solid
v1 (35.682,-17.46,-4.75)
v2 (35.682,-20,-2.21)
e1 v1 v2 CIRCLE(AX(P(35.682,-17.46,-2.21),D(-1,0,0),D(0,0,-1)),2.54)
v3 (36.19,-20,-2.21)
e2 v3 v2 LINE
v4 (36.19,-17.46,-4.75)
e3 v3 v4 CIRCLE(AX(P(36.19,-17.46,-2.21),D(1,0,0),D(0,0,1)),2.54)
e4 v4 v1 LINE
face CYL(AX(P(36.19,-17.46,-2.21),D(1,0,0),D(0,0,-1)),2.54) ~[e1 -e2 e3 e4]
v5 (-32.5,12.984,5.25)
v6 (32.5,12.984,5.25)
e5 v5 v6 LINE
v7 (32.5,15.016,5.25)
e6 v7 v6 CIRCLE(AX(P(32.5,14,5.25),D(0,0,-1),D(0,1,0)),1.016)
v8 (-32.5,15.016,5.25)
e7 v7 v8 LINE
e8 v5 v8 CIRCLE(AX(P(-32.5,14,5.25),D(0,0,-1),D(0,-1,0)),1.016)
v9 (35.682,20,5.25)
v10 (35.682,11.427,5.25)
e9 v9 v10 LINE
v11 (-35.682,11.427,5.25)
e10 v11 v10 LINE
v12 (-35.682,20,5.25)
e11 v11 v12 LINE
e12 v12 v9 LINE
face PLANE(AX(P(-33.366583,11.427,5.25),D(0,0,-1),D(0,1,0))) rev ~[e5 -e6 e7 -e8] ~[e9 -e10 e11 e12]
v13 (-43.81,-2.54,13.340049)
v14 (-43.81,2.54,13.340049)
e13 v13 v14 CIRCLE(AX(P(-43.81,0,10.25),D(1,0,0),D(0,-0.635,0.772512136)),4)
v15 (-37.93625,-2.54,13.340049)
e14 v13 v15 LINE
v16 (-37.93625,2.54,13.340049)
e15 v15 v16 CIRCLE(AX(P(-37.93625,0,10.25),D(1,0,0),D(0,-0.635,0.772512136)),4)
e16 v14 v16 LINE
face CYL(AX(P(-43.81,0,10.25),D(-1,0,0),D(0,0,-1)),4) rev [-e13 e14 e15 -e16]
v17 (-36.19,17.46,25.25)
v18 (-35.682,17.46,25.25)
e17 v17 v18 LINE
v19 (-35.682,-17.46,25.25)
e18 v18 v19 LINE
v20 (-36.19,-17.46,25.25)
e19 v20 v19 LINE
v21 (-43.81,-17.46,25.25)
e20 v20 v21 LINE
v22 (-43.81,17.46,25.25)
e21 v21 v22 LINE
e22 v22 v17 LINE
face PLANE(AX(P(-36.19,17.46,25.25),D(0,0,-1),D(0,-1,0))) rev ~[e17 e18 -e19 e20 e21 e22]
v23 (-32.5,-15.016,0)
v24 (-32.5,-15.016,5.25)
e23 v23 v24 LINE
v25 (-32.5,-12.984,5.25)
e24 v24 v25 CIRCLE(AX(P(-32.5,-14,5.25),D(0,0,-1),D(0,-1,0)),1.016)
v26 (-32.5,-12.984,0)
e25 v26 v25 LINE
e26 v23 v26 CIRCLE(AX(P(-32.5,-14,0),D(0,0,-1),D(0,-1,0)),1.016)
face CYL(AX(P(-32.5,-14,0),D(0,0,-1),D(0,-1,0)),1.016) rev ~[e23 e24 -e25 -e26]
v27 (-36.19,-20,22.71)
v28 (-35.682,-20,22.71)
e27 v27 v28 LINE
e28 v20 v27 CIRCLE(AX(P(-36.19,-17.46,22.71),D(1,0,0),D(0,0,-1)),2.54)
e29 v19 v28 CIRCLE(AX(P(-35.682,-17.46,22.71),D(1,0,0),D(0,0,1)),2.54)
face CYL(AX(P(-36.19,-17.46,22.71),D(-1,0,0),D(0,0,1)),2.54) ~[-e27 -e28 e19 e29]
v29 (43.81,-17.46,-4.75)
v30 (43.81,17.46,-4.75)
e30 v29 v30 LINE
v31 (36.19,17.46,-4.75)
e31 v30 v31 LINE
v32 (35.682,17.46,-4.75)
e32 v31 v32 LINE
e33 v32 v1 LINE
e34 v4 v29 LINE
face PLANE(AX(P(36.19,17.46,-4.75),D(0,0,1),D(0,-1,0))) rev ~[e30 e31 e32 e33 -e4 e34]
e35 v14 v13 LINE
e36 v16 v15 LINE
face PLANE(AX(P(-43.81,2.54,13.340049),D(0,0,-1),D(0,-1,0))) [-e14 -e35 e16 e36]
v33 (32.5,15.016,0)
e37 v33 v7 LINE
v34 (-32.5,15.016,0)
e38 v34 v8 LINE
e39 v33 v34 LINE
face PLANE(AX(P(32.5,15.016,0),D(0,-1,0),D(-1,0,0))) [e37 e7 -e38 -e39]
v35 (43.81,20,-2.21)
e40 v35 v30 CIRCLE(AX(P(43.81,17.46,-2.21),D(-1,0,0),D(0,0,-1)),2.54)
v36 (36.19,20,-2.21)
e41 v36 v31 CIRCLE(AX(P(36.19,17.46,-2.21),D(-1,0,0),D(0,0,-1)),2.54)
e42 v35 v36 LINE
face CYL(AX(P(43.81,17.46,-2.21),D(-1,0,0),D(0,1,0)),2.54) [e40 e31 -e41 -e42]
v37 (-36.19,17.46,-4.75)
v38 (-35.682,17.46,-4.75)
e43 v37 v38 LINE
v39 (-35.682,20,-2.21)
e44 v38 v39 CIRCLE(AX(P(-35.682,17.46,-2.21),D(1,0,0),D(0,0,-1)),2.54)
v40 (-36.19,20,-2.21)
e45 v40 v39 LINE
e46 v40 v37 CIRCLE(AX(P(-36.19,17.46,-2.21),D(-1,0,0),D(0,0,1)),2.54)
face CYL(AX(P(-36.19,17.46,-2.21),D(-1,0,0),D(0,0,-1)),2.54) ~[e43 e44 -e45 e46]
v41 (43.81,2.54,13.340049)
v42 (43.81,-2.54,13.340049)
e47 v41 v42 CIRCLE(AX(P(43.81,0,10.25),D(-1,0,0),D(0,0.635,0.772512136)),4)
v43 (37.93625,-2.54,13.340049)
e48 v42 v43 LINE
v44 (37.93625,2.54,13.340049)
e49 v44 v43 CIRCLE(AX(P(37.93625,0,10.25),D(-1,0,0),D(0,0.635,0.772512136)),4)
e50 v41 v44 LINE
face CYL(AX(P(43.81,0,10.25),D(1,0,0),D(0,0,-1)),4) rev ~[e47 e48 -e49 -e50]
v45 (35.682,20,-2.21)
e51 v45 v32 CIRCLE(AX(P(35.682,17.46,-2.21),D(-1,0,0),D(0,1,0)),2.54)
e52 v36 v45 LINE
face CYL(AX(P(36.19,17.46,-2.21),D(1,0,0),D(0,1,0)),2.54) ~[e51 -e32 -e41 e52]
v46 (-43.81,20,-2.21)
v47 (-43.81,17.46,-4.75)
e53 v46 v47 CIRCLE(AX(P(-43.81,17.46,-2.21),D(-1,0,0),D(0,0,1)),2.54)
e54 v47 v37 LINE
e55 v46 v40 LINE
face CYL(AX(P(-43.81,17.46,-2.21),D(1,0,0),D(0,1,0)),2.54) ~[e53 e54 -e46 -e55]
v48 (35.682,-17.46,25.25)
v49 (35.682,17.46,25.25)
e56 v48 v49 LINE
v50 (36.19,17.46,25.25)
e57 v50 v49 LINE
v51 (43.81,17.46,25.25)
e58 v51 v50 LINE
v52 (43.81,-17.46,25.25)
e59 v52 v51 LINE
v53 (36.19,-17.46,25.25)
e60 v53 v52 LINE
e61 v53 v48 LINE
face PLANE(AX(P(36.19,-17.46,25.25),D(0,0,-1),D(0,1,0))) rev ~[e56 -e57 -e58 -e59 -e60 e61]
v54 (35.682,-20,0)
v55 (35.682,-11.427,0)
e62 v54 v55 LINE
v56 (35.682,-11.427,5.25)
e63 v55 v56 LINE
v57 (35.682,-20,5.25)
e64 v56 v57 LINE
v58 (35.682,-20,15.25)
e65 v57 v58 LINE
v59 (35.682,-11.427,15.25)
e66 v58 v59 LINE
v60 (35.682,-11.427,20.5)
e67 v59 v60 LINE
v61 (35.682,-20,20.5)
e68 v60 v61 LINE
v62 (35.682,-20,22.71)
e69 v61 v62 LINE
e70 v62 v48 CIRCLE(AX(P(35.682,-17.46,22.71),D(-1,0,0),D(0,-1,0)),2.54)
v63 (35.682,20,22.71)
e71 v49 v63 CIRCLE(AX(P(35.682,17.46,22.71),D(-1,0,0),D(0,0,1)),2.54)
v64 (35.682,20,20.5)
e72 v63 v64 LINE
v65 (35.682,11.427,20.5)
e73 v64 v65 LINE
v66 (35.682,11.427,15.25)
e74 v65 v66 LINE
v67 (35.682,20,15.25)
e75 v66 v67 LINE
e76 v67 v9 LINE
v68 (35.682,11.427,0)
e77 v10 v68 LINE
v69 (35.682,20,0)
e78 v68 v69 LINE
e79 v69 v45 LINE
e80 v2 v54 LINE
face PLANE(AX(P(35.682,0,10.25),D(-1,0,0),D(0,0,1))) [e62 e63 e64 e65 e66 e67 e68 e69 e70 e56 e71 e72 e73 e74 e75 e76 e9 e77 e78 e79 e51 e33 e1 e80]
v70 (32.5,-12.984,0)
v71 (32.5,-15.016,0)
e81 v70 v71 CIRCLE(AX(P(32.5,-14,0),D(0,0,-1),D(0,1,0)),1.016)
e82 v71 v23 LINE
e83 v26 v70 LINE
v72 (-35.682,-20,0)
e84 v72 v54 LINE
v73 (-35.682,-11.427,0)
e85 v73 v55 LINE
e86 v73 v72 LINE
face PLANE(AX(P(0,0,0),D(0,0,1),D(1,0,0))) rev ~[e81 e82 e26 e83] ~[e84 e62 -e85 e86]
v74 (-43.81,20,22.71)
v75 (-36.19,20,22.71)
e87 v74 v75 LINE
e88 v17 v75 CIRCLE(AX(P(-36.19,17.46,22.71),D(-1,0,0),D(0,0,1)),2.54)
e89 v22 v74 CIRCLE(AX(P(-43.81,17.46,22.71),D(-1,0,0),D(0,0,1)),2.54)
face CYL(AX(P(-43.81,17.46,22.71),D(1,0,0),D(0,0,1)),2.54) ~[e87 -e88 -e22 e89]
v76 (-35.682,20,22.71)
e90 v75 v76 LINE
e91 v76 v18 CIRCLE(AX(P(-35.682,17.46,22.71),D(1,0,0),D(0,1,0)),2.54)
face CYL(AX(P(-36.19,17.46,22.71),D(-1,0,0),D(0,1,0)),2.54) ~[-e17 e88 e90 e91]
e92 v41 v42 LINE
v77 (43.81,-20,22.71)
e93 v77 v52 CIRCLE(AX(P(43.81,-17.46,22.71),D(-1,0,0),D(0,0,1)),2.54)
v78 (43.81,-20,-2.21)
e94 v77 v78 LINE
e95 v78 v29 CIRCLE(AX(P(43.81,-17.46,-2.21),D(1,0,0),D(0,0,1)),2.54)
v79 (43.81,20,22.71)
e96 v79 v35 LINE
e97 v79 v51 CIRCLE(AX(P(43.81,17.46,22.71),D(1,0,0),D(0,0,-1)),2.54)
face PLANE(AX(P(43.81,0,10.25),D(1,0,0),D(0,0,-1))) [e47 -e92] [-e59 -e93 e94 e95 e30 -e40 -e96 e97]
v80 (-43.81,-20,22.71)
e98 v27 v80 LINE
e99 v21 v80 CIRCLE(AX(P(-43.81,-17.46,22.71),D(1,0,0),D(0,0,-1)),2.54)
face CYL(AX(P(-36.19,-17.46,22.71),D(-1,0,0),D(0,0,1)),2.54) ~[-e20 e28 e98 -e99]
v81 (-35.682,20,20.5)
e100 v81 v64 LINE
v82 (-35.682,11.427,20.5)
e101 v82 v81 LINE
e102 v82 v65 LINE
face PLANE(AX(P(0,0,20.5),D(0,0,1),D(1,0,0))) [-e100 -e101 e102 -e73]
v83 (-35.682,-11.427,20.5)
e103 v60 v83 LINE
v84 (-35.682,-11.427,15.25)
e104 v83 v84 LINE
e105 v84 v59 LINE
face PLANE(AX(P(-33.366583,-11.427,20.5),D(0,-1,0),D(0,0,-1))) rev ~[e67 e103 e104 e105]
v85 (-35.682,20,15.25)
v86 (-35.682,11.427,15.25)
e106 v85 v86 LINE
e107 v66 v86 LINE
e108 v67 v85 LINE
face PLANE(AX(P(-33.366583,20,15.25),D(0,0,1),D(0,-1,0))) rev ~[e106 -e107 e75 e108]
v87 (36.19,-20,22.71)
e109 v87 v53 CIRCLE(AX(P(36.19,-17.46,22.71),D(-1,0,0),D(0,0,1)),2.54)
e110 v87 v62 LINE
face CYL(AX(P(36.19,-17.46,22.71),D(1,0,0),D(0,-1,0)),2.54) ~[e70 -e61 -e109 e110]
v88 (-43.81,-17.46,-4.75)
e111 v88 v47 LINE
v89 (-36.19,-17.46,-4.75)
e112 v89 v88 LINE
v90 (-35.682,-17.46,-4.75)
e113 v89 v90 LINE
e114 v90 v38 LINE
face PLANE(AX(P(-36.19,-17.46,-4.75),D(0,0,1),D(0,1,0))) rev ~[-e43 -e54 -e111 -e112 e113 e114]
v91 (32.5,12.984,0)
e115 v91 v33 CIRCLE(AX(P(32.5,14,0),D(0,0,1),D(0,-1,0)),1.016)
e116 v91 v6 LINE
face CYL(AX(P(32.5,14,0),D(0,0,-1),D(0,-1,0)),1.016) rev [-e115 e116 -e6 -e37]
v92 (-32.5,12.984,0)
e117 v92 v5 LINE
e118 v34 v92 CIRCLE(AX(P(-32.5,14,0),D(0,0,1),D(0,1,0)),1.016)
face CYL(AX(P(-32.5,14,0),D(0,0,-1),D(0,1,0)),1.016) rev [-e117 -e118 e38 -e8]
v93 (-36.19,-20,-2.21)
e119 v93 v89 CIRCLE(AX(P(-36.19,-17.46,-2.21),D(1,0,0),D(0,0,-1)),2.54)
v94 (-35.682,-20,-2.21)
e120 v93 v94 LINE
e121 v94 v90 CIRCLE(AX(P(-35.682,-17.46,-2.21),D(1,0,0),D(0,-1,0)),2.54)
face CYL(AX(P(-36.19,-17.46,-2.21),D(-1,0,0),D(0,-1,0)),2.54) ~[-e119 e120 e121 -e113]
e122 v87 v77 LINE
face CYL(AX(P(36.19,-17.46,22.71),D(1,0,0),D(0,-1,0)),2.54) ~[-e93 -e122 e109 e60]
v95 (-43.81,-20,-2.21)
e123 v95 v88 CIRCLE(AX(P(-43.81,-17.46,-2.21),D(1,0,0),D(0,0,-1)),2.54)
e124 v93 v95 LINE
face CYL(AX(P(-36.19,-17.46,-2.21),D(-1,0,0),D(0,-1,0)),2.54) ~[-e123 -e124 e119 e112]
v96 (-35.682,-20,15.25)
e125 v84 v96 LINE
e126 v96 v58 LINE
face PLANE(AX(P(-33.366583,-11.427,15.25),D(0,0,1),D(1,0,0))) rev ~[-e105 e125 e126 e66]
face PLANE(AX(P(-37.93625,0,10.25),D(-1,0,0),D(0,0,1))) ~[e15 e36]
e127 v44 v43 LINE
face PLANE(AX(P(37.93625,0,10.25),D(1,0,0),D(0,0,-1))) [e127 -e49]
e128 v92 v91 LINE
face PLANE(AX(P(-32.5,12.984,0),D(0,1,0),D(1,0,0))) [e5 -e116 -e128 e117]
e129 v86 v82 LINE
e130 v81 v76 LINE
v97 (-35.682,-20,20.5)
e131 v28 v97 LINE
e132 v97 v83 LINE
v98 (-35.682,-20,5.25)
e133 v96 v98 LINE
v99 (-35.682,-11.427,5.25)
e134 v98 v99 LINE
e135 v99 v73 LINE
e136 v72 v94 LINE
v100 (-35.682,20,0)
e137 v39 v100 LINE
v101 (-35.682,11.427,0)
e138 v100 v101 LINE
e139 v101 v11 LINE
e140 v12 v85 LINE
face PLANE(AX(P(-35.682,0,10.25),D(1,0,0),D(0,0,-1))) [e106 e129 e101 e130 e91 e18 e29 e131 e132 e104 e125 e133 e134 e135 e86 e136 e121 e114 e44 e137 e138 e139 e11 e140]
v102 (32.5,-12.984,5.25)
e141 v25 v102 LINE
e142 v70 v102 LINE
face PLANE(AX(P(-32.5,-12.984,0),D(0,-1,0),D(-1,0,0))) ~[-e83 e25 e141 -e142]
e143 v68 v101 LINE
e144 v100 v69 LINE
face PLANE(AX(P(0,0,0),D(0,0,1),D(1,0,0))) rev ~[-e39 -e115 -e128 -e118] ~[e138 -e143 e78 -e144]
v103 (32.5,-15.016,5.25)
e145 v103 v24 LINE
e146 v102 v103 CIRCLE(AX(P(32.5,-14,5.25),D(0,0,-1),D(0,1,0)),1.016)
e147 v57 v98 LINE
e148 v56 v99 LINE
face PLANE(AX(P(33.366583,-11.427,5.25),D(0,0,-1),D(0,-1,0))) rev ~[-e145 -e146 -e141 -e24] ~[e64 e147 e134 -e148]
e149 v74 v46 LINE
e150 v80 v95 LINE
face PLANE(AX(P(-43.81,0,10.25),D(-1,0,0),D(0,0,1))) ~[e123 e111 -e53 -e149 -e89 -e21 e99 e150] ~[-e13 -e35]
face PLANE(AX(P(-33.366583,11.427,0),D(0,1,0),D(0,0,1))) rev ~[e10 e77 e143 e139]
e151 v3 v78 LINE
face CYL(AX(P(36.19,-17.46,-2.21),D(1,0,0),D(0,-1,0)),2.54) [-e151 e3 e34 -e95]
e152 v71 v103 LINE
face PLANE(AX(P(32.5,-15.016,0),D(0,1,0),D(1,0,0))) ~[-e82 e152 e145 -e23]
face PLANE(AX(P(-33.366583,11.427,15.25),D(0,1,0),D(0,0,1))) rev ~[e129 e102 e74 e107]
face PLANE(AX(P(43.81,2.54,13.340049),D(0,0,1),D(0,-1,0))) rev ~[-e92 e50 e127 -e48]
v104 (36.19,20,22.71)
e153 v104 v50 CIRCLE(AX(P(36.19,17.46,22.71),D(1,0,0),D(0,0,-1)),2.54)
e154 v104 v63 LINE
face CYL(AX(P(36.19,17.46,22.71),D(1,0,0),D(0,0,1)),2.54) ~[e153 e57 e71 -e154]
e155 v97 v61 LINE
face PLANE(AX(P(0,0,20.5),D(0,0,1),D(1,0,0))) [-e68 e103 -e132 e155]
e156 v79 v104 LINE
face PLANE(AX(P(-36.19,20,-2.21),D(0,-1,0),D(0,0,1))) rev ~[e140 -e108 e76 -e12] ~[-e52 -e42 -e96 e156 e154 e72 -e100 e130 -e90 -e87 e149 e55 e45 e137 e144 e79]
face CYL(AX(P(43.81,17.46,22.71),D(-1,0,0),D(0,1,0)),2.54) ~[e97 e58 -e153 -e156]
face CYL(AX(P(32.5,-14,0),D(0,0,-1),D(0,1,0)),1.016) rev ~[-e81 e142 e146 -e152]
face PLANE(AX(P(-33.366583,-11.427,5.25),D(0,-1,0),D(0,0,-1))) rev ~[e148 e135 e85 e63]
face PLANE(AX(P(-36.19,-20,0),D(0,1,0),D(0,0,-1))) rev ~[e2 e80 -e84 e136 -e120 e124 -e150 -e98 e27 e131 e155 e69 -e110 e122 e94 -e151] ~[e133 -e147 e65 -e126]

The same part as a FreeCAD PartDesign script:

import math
import FreeCAD as App
import Part
import Sketcher

V = App.Vector
Q = App.Units.Quantity


def edges_at(feature, points):
    """Names of the edges that pass closest to the given points."""
    edges = feature.Shape.Edges
    near = lambda p: min(range(len(edges)), key=lambda i: edges[i].distToShape(Part.Vertex(*p))[0])
    return sorted({f"Edge{near(p) + 1}" for p in points})


def add_polygon(sketch, points):
    """Adds a closed chain of lines whose ends are joined by coincident constraints."""
    first, n = sketch.GeometryCount, len(points)
    for a, b in zip(points, points[1:] + points[:1]):
        sketch.addGeometry(Part.LineSegment(App.Vector(*a, 0), App.Vector(*b, 0)), False)
    for i in range(n):
        sketch.addConstraint(Sketcher.Constraint("Coincident", first + i, 2, first + (i + 1) % n, 1))

doc = App.newDocument("Part")
body = doc.addObject("PartDesign::Body", "Body")

# Sketch on XY plane
sketch1 = body.newObject("Sketcher::SketchObject", "Sketch")
sketch1.AttachmentSupport = (doc.getObject("XY_Plane"), [""])
sketch1.MapMode = "FlatFace"
add_polygon(sketch1, [(-40, 20), (-40, -20), (40, -20), (40, 20)])  # lines 0-3
sketch1.addConstraint([
    Sketcher.Constraint("Vertical", 0),
    Sketcher.Constraint("Horizontal", 1),
    Sketcher.Constraint("Vertical", 2),
    Sketcher.Constraint("Horizontal", 3),
    Sketcher.Constraint("Symmetric", 0, 2, 2, 2, -1, 1),
    Sketcher.Constraint("DistanceX", 1, 1, 1, 2, Q("80 mm")),
    Sketcher.Constraint("DistanceY", 0, 2, 0, 1, Q("40 mm")),
])
pad1 = body.newObject("PartDesign::Pad", "Pad")
pad1.Profile = sketch1
pad1.Length = 20.5

# Sketch on XY plane
sketch2 = body.newObject("Sketcher::SketchObject", "Sketch001")
sketch2.AttachmentSupport = (doc.getObject("XY_Plane"), [""])
sketch2.MapMode = "FlatFace"
sketch2.AttachmentOffset = App.Placement(V(0, 0, 20.5), App.Rotation())
add_polygon(sketch2, [(-33.366583, 11.427), (-33.366583, -11.427), (33.366583, -11.427), (33.366583, 11.427)])  # lines 0-3
sketch2.addConstraint([
    Sketcher.Constraint("Vertical", 0),
    Sketcher.Constraint("Horizontal", 1),
    Sketcher.Constraint("Vertical", 2),
    Sketcher.Constraint("Horizontal", 3),
    Sketcher.Constraint("Symmetric", 0, 2, 2, 2, -1, 1),
    Sketcher.Constraint("DistanceY", 0, 2, 0, 1, Q("22.854 mm")),
    Sketcher.Constraint("DistanceX", 1, 1, 1, 2, Q("66.733166 mm")),
])
pocket1 = body.newObject("PartDesign::Pocket", "Pocket")
pocket1.Profile = sketch2
pocket1.Type = "ThroughAll"

# Sketch on YZ plane
sketch3 = body.newObject("Sketcher::SketchObject", "Sketch002")
sketch3.AttachmentSupport = (doc.getObject("YZ_Plane"), [""])
sketch3.MapMode = "FlatFace"
sketch3.AttachmentOffset = App.Placement(V(0, 0, 40), App.Rotation())
add_polygon(sketch3, [(20, 25.25), (-20, 25.25), (-20, -4.75), (20, -4.75)])  # lines 0-3
sketch3.addConstraint([
    Sketcher.Constraint("Horizontal", 0),
    Sketcher.Constraint("Vertical", 1),
    Sketcher.Constraint("Horizontal", 2),
    Sketcher.Constraint("Vertical", 3),
    Sketcher.Constraint("DistanceX", 0, 2, 0, 1, Q("40 mm")),
    Sketcher.Constraint("DistanceY", 1, 2, 1, 1, Q("30 mm")),
    Sketcher.Constraint("DistanceX", 0, 2, -1, 1, Q("20 mm")),
    Sketcher.Constraint("DistanceY", -1, 1, 0, 2, Q("25.25 mm")),
])
pad2 = body.newObject("PartDesign::Pad", "Pad001")
pad2.Profile = sketch3
pad2.Length = 7.62
pad2.Midplane = True
doc.recompute()

mirrored = body.newObject("PartDesign::Mirrored", "Mirrored")
mirrored.Originals = [pad2]
mirrored.MirrorPlane = (doc.getObject("YZ_Plane"), [""])
body.Tip = mirrored

# Sketch on YZ plane
sketch4 = body.newObject("Sketcher::SketchObject", "Sketch003")
sketch4.AttachmentSupport = (doc.getObject("YZ_Plane"), [""])
sketch4.MapMode = "FlatFace"
sketch4.AttachmentOffset = App.Placement(V(0, 0, 43.81), App.Rotation())
sketch4.addGeometry(Part.Circle(V(0, 10.25, 0), V(0, 0, 1), 4), False)
sketch4.addConstraint([
    Sketcher.Constraint("PointOnObject", 0, 3, -2),
    Sketcher.Constraint("Diameter", 0, Q("8 mm")),
    Sketcher.Constraint("DistanceY", -1, 1, 0, 3, Q("10.25 mm")),
])
pocket2 = body.newObject("PartDesign::Pocket", "Pocket001")
pocket2.Profile = sketch4
pocket2.Length = 5.87375
doc.recompute()

mirrored2 = body.newObject("PartDesign::Mirrored", "Mirrored001")
mirrored2.Originals = [pocket2]
mirrored2.MirrorPlane = (doc.getObject("YZ_Plane"), [""])
body.Tip = mirrored2

# Sketch on XZ plane
sketch5 = body.newObject("Sketcher::SketchObject", "Sketch004")
sketch5.AttachmentSupport = (doc.getObject("XZ_Plane"), [""])
sketch5.MapMode = "FlatFace"
sketch5.AttachmentOffset = App.Placement(V(0, 0, 11.427), App.Rotation())
add_polygon(sketch5, [(-33.366583, 5.25), (-33.366583, 15.25), (33.366583, 15.25), (33.366583, 5.25)])  # lines 0-3
sketch5.addConstraint([
    Sketcher.Constraint("Vertical", 0),
    Sketcher.Constraint("Horizontal", 1),
    Sketcher.Constraint("Vertical", 2),
    Sketcher.Constraint("Horizontal", 3),
    Sketcher.Constraint("DistanceY", 0, 1, 0, 2, Q("10 mm")),
    Sketcher.Constraint("DistanceY", -1, 1, 0, 2, Q("15.25 mm")),
    Sketcher.Constraint("DistanceX", 1, 1, 1, 2, Q("66.733166 mm")),
    Sketcher.Constraint("DistanceX", 0, 2, -1, 1, Q("33.366583 mm")),
])
pocket3 = body.newObject("PartDesign::Pocket", "Pocket002")
pocket3.Profile = sketch5
pocket3.Type = "ThroughAll"
pocket3.Midplane = True
doc.recompute()

fillet = body.newObject("PartDesign::Fillet", "Fillet")
fillet.Base = (pocket3, edges_at(pocket3, [
    (40, 20, 25.25),
    (40, -20, 25.25),
    (40, -20, -4.75),
    (40, 20, -4.75),
    (-40, -20, 25.25),
    (-40, 20, 25.25),
    (-40, 20, -4.75),
    (-40, -20, -4.75),
]))
fillet.Radius = 2.54

# Sketch on XY plane
sketch6 = body.newObject("Sketcher::SketchObject", "Sketch005")
sketch6.AttachmentSupport = (doc.getObject("XY_Plane"), [""])
sketch6.MapMode = "FlatFace"
sketch6.addGeometry([
    Part.LineSegment(V(-32.5, 15.016, 0), V(32.5, 15.016, 0)),
    Part.ArcOfCircle(Part.Circle(V(32.5, 14, 0), V(0, 0, 1), 1.016), math.radians(-90), math.radians(90)),
    Part.LineSegment(V(32.5, 12.984, 0), V(-32.5, 12.984, 0)),
    Part.ArcOfCircle(Part.Circle(V(-32.5, 14, 0), V(0, 0, 1), 1.016), math.radians(90), math.radians(270)),
], False)
sketch6.addConstraint([
    Sketcher.Constraint("Tangent", 0, 2, 1, 2),
    Sketcher.Constraint("Tangent", 1, 1, 2, 1),
    Sketcher.Constraint("Tangent", 2, 2, 3, 2),
    Sketcher.Constraint("Tangent", 3, 1, 0, 1),
    Sketcher.Constraint("Horizontal", 0),
    Sketcher.Constraint("Horizontal", 2),
    Sketcher.Constraint("DistanceX", 0, 1, 0, 2, Q("65 mm")),
    Sketcher.Constraint("DistanceY", -1, 1, 1, 3, Q("14 mm")),
    Sketcher.Constraint("Radius", 1, Q("1.016 mm")),
    Sketcher.Constraint("DistanceX", -1, 1, 1, 3, Q("32.5 mm")),
])
pocket4 = body.newObject("PartDesign::Pocket", "Pocket003")
pocket4.Profile = sketch6
pocket4.Length = 5.25
pocket4.Reversed = True
doc.recompute()

mirrored3 = body.newObject("PartDesign::Mirrored", "Mirrored002")
mirrored3.Originals = [pocket4]
mirrored3.MirrorPlane = (doc.getObject("XZ_Plane"), [""])
body.Tip = mirrored3

# Sketch on YZ plane
sketch7 = body.newObject("Sketcher::SketchObject", "Sketch006")
sketch7.AttachmentSupport = (doc.getObject("YZ_Plane"), [""])
sketch7.MapMode = "FlatFace"
sketch7.AttachmentOffset = App.Placement(V(0, 0, 43.81), App.Rotation())
sketch7.addGeometry([
    Part.LineSegment(V(-2.54, 13.340049, 0), V(2.54, 13.340049, 0)),
    Part.ArcOfCircle(Part.Circle(V(0, 10.25, 0), V(0, 0, 1), 4), math.radians(50.580016), math.radians(129.419984)),
], False)
sketch7.addConstraint([
    Sketcher.Constraint("Coincident", 0, 1, 1, 2),
    Sketcher.Constraint("Coincident", 1, 1, 0, 2),
    Sketcher.Constraint("Horizontal", 0),
    Sketcher.Constraint("PointOnObject", 1, 3, -2),
    Sketcher.Constraint("Radius", 1, Q("4 mm")),
    Sketcher.Constraint("DistanceX", 0, 1, 0, 2, Q("5.08 mm")),
    Sketcher.Constraint("DistanceY", -1, 1, 1, 3, Q("10.25 mm")),
])
pad3 = body.newObject("PartDesign::Pad", "Pad002")
pad3.Profile = sketch7
pad3.Length = 5.87375
pad3.Reversed = True

# Sketch on YZ plane
sketch8 = body.newObject("Sketcher::SketchObject", "Sketch007")
sketch8.AttachmentSupport = (doc.getObject("YZ_Plane"), [""])
sketch8.MapMode = "FlatFace"
sketch8.AttachmentOffset = App.Placement(V(0, 0, -43.81), App.Rotation())
sketch8.addGeometry([
    Part.LineSegment(V(2.54, 13.340049, 0), V(-2.54, 13.340049, 0)),
    Part.ArcOfCircle(Part.Circle(V(0, 10.25, 0), V(0, 0, 1), 4), math.radians(50.580016), math.radians(129.419984)),
], False)
sketch8.addConstraint([
    Sketcher.Constraint("Coincident", 0, 1, 1, 1),
    Sketcher.Constraint("Coincident", 1, 2, 0, 2),
    Sketcher.Constraint("Horizontal", 0),
    Sketcher.Constraint("PointOnObject", 1, 3, -2),
    Sketcher.Constraint("Radius", 1, Q("4 mm")),
    Sketcher.Constraint("DistanceX", 0, 2, 0, 1, Q("5.08 mm")),
    Sketcher.Constraint("DistanceY", -1, 1, 1, 3, Q("10.25 mm")),
])
pad4 = body.newObject("PartDesign::Pad", "Pad003")
pad4.Profile = sketch8
pad4.Length = 5.87375

# Sketch on YZ plane
sketch9 = body.newObject("Sketcher::SketchObject", "Sketch008")
sketch9.AttachmentSupport = (doc.getObject("YZ_Plane"), [""])
sketch9.MapMode = "FlatFace"
sketch9.AttachmentOffset = App.Placement(V(0, 0, 33.366583), App.Rotation())
add_polygon(sketch9, [(11.427, 20.5), (11.427, 15.25), (20, 15.25), (20, 5.25), (11.427, 5.25), (11.427, 0), (-11.427, 0), (-11.427, 5.25), (-20, 5.25), (-20, 15.25), (-11.427, 15.25), (-11.427, 20.5)])  # lines 0-11
sketch9.addConstraint([
    Sketcher.Constraint("Vertical", 0),
    Sketcher.Constraint("Horizontal", 1),
    Sketcher.Constraint("Vertical", 2),
    Sketcher.Constraint("Horizontal", 3),
    Sketcher.Constraint("Vertical", 4),
    Sketcher.Constraint("Horizontal", 5),
    Sketcher.Constraint("Vertical", 6),
    Sketcher.Constraint("Horizontal", 7),
    Sketcher.Constraint("Vertical", 8),
    Sketcher.Constraint("Horizontal", 9),
    Sketcher.Constraint("Vertical", 10),
    Sketcher.Constraint("Horizontal", 11),
    Sketcher.Constraint("Symmetric", 4, 2, 5, 2, -1, 1),
    Sketcher.Constraint("Symmetric", 2, 2, 7, 2, -2),
    Sketcher.Constraint("Symmetric", 0, 2, 9, 2, -2),
    Sketcher.Constraint("Vertical", 0, 2, 3, 2),
    Sketcher.Constraint("Equal", 0, 4),
    Sketcher.Constraint("DistanceY", 2, 2, 2, 1, Q("10 mm")),
    Sketcher.Constraint("DistanceX", -1, 1, 1, 2, Q("20 mm")),
    Sketcher.Constraint("DistanceY", 0, 2, 0, 1, Q("5.25 mm")),
    Sketcher.Constraint("DistanceX", 1, 1, 1, 2, Q("8.573 mm")),
])
pocket5 = body.newObject("PartDesign::Pocket", "Pocket004")
pocket5.Profile = sketch9
pocket5.Length = 2.823417
pocket5.Reversed = True

# Sketch on YZ plane
sketch10 = body.newObject("Sketcher::SketchObject", "Sketch009")
sketch10.AttachmentSupport = (doc.getObject("YZ_Plane"), [""])
sketch10.MapMode = "FlatFace"
sketch10.AttachmentOffset = App.Placement(V(0, 0, -33.366583), App.Rotation())
add_polygon(sketch10, [(-11.427, 20.5), (-11.427, 15.25), (-20, 15.25), (-20, 5.25), (-11.427, 5.25), (-11.427, 0), (11.427, 0), (11.427, 5.25), (20, 5.25), (20, 15.25), (11.427, 15.25), (11.427, 20.5)])  # lines 0-11
sketch10.addConstraint([
    Sketcher.Constraint("Vertical", 0),
    Sketcher.Constraint("Horizontal", 1),
    Sketcher.Constraint("Vertical", 2),
    Sketcher.Constraint("Horizontal", 3),
    Sketcher.Constraint("Vertical", 4),
    Sketcher.Constraint("Horizontal", 5),
    Sketcher.Constraint("Vertical", 6),
    Sketcher.Constraint("Horizontal", 7),
    Sketcher.Constraint("Vertical", 8),
    Sketcher.Constraint("Horizontal", 9),
    Sketcher.Constraint("Vertical", 10),
    Sketcher.Constraint("Horizontal", 11),
    Sketcher.Constraint("Symmetric", 4, 2, 5, 2, -1, 1),
    Sketcher.Constraint("Symmetric", 2, 2, 7, 2, -2),
    Sketcher.Constraint("Symmetric", 0, 2, 9, 2, -2),
    Sketcher.Constraint("Vertical", 0, 2, 3, 2),
    Sketcher.Constraint("Equal", 0, 4),
    Sketcher.Constraint("DistanceY", 2, 2, 2, 1, Q("10 mm")),
    Sketcher.Constraint("DistanceX", 1, 2, -1, 1, Q("20 mm")),
    Sketcher.Constraint("DistanceY", 0, 2, 0, 1, Q("5.25 mm")),
    Sketcher.Constraint("DistanceX", 1, 2, 1, 1, Q("8.573 mm")),
])
pocket6 = body.newObject("PartDesign::Pocket", "Pocket005")
pocket6.Profile = sketch10
pocket6.Length = 2.823417

# Sketch on YZ plane
sketch11 = body.newObject("Sketcher::SketchObject", "Sketch010")
sketch11.AttachmentSupport = (doc.getObject("YZ_Plane"), [""])
sketch11.MapMode = "FlatFace"
sketch11.AttachmentOffset = App.Placement(V(0, 0, 36.19), App.Rotation())
sketch11.addGeometry([
    Part.LineSegment(V(17.46, -4.75, 0), V(-17.46, -4.75, 0)),  # 0
    Part.ArcOfCircle(Part.Circle(V(-17.46, -2.21, 0), V(0, 0, 1), 2.54), math.radians(-180), math.radians(-90)),  # 1
    Part.LineSegment(V(-20, -2.21, 0), V(-20, 0, 0)),  # 2
    Part.LineSegment(V(-20, 0, 0), V(-11.427, 0, 0)),  # 3
    Part.LineSegment(V(-11.427, 0, 0), V(-11.427, 5.25, 0)),  # 4
    Part.LineSegment(V(-11.427, 5.25, 0), V(-20, 5.25, 0)),  # 5
    Part.LineSegment(V(-20, 5.25, 0), V(-20, 15.25, 0)),  # 6
    Part.LineSegment(V(-20, 15.25, 0), V(-11.427, 15.25, 0)),  # 7
    Part.LineSegment(V(-11.427, 15.25, 0), V(-11.427, 20.5, 0)),  # 8
    Part.LineSegment(V(-11.427, 20.5, 0), V(-20, 20.5, 0)),  # 9
    Part.LineSegment(V(-20, 20.5, 0), V(-20, 22.71, 0)),  # 10
    Part.ArcOfCircle(Part.Circle(V(-17.46, 22.71, 0), V(0, 0, 1), 2.54), math.radians(90), math.radians(180)),  # 11
    Part.LineSegment(V(-17.46, 25.25, 0), V(17.46, 25.25, 0)),  # 12
    Part.ArcOfCircle(Part.Circle(V(17.46, 22.71, 0), V(0, 0, 1), 2.54), math.radians(0), math.radians(90)),  # 13
    Part.LineSegment(V(20, 22.71, 0), V(20, 20.5, 0)),  # 14
    Part.LineSegment(V(20, 20.5, 0), V(11.427, 20.5, 0)),  # 15
    Part.LineSegment(V(11.427, 20.5, 0), V(11.427, 15.25, 0)),  # 16
    Part.LineSegment(V(11.427, 15.25, 0), V(20, 15.25, 0)),  # 17
    Part.LineSegment(V(20, 15.25, 0), V(20, 5.25, 0)),  # 18
    Part.LineSegment(V(20, 5.25, 0), V(11.427, 5.25, 0)),  # 19
    Part.LineSegment(V(11.427, 5.25, 0), V(11.427, 0, 0)),  # 20
    Part.LineSegment(V(11.427, 0, 0), V(20, 0, 0)),  # 21
    Part.LineSegment(V(20, 0, 0), V(20, -2.21, 0)),  # 22
    Part.ArcOfCircle(Part.Circle(V(17.46, -2.21, 0), V(0, 0, 1), 2.54), math.radians(-90), math.radians(0)),  # 23
], False)
sketch11.addConstraint([
    Sketcher.Constraint("Tangent", 0, 2, 1, 2),
    Sketcher.Constraint("Tangent", 1, 1, 2, 1),
    Sketcher.Constraint("Coincident", 2, 2, 3, 1),
    Sketcher.Constraint("Coincident", 3, 2, 4, 1),
    Sketcher.Constraint("Coincident", 4, 2, 5, 1),
    Sketcher.Constraint("Coincident", 5, 2, 6, 1),
    Sketcher.Constraint("Coincident", 6, 2, 7, 1),
    Sketcher.Constraint("Coincident", 7, 2, 8, 1),
    Sketcher.Constraint("Coincident", 8, 2, 9, 1),
    Sketcher.Constraint("Coincident", 9, 2, 10, 1),
    Sketcher.Constraint("Tangent", 10, 2, 11, 2),
    Sketcher.Constraint("Tangent", 11, 1, 12, 1),
    Sketcher.Constraint("Tangent", 12, 2, 13, 2),
    Sketcher.Constraint("Tangent", 13, 1, 14, 1),
    Sketcher.Constraint("Coincident", 14, 2, 15, 1),
    Sketcher.Constraint("Coincident", 15, 2, 16, 1),
    Sketcher.Constraint("Coincident", 16, 2, 17, 1),
    Sketcher.Constraint("Coincident", 17, 2, 18, 1),
    Sketcher.Constraint("Coincident", 18, 2, 19, 1),
    Sketcher.Constraint("Coincident", 19, 2, 20, 1),
    Sketcher.Constraint("Coincident", 20, 2, 21, 1),
    Sketcher.Constraint("Coincident", 21, 2, 22, 1),
    Sketcher.Constraint("Tangent", 22, 2, 23, 2),
    Sketcher.Constraint("Tangent", 23, 1, 0, 1),
    Sketcher.Constraint("Horizontal", 0),
    Sketcher.Constraint("Vertical", 2),
    Sketcher.Constraint("Horizontal", 3),
    Sketcher.Constraint("Vertical", 4),
    Sketcher.Constraint("Horizontal", 5),
    Sketcher.Constraint("Vertical", 6),
    Sketcher.Constraint("Horizontal", 7),
    Sketcher.Constraint("Vertical", 8),
    Sketcher.Constraint("Horizontal", 9),
    Sketcher.Constraint("Vertical", 10),
    Sketcher.Constraint("Horizontal", 12),
    Sketcher.Constraint("Vertical", 14),
    Sketcher.Constraint("Horizontal", 15),
    Sketcher.Constraint("Vertical", 16),
    Sketcher.Constraint("Horizontal", 17),
    Sketcher.Constraint("Vertical", 18),
    Sketcher.Constraint("Horizontal", 19),
    Sketcher.Constraint("Vertical", 20),
    Sketcher.Constraint("Horizontal", 21),
    Sketcher.Constraint("Vertical", 22),
    Sketcher.Constraint("Equal", 1, 11),
    Sketcher.Constraint("Equal", 11, 13),
    Sketcher.Constraint("Equal", 13, 23),
    Sketcher.Constraint("Symmetric", 3, 2, 20, 2, -1, 1),
    Sketcher.Constraint("Symmetric", 9, 2, 14, 2, -2),
    Sketcher.Constraint("Symmetric", 7, 2, 16, 2, -2),
    Sketcher.Constraint("Symmetric", 5, 2, 18, 2, -2),
    Sketcher.Constraint("Symmetric", 2, 2, 21, 2, -2),
    Sketcher.Constraint("Vertical", 1, 3, 11, 3),
    Sketcher.Constraint("Vertical", 2, 2, 5, 2),
    Sketcher.Constraint("Vertical", 4, 2, 7, 2),
    Sketcher.Constraint("Equal", 4, 8),
    Sketcher.Constraint("Equal", 2, 10),
    Sketcher.Constraint("DistanceY", 6, 1, 6, 2, Q("10 mm")),
    Sketcher.Constraint("Radius", 1, Q("2.54 mm")),
    Sketcher.Constraint("DistanceX", 1, 1, -1, 1, Q("20 mm")),
    Sketcher.Constraint("DistanceY", 0, 2, 4, 2, Q("10 mm")),
    Sketcher.Constraint("DistanceY", 2, 1, 2, 2, Q("2.21 mm")),
    Sketcher.Constraint("DistanceX", 3, 1, 3, 2, Q("8.573 mm")),
])
pad5 = body.newObject("PartDesign::Pad", "Pad004")
pad5.Profile = sketch11
pad5.Length = 0.508
pad5.Reversed = True

# Sketch on YZ plane
sketch12 = body.newObject("Sketcher::SketchObject", "Sketch011")
sketch12.AttachmentSupport = (doc.getObject("YZ_Plane"), [""])
sketch12.MapMode = "FlatFace"
sketch12.AttachmentOffset = App.Placement(V(0, 0, -36.19), App.Rotation())
sketch12.addGeometry([
    Part.LineSegment(V(-20, 0, 0), V(-20, -2.21, 0)),  # 0
    Part.ArcOfCircle(Part.Circle(V(-17.46, -2.21, 0), V(0, 0, 1), 2.54), math.radians(-180), math.radians(-90)),  # 1
    Part.LineSegment(V(-17.46, -4.75, 0), V(17.46, -4.75, 0)),  # 2
    Part.ArcOfCircle(Part.Circle(V(17.46, -2.21, 0), V(0, 0, 1), 2.54), math.radians(-90), math.radians(0)),  # 3
    Part.LineSegment(V(20, -2.21, 0), V(20, 0, 0)),  # 4
    Part.LineSegment(V(20, 0, 0), V(11.427, 0, 0)),  # 5
    Part.LineSegment(V(11.427, 0, 0), V(11.427, 5.25, 0)),  # 6
    Part.LineSegment(V(11.427, 5.25, 0), V(20, 5.25, 0)),  # 7
    Part.LineSegment(V(20, 5.25, 0), V(20, 15.25, 0)),  # 8
    Part.LineSegment(V(20, 15.25, 0), V(11.427, 15.25, 0)),  # 9
    Part.LineSegment(V(11.427, 15.25, 0), V(11.427, 20.5, 0)),  # 10
    Part.LineSegment(V(11.427, 20.5, 0), V(20, 20.5, 0)),  # 11
    Part.LineSegment(V(20, 20.5, 0), V(20, 22.71, 0)),  # 12
    Part.ArcOfCircle(Part.Circle(V(17.46, 22.71, 0), V(0, 0, 1), 2.54), math.radians(0), math.radians(90)),  # 13
    Part.LineSegment(V(17.46, 25.25, 0), V(-17.46, 25.25, 0)),  # 14
    Part.ArcOfCircle(Part.Circle(V(-17.46, 22.71, 0), V(0, 0, 1), 2.54), math.radians(90), math.radians(180)),  # 15
    Part.LineSegment(V(-20, 22.71, 0), V(-20, 20.5, 0)),  # 16
    Part.LineSegment(V(-20, 20.5, 0), V(-11.427, 20.5, 0)),  # 17
    Part.LineSegment(V(-11.427, 20.5, 0), V(-11.427, 15.25, 0)),  # 18
    Part.LineSegment(V(-11.427, 15.25, 0), V(-20, 15.25, 0)),  # 19
    Part.LineSegment(V(-20, 15.25, 0), V(-20, 5.25, 0)),  # 20
    Part.LineSegment(V(-20, 5.25, 0), V(-11.427, 5.25, 0)),  # 21
    Part.LineSegment(V(-11.427, 5.25, 0), V(-11.427, 0, 0)),  # 22
    Part.LineSegment(V(-11.427, 0, 0), V(-20, 0, 0)),  # 23
], False)
sketch12.addConstraint([
    Sketcher.Constraint("Tangent", 0, 2, 1, 1),
    Sketcher.Constraint("Tangent", 1, 2, 2, 1),
    Sketcher.Constraint("Tangent", 2, 2, 3, 1),
    Sketcher.Constraint("Tangent", 3, 2, 4, 1),
    Sketcher.Constraint("Coincident", 4, 2, 5, 1),
    Sketcher.Constraint("Coincident", 5, 2, 6, 1),
    Sketcher.Constraint("Coincident", 6, 2, 7, 1),
    Sketcher.Constraint("Coincident", 7, 2, 8, 1),
    Sketcher.Constraint("Coincident", 8, 2, 9, 1),
    Sketcher.Constraint("Coincident", 9, 2, 10, 1),
    Sketcher.Constraint("Coincident", 10, 2, 11, 1),
    Sketcher.Constraint("Coincident", 11, 2, 12, 1),
    Sketcher.Constraint("Tangent", 12, 2, 13, 1),
    Sketcher.Constraint("Tangent", 13, 2, 14, 1),
    Sketcher.Constraint("Tangent", 14, 2, 15, 1),
    Sketcher.Constraint("Tangent", 15, 2, 16, 1),
    Sketcher.Constraint("Coincident", 16, 2, 17, 1),
    Sketcher.Constraint("Coincident", 17, 2, 18, 1),
    Sketcher.Constraint("Coincident", 18, 2, 19, 1),
    Sketcher.Constraint("Coincident", 19, 2, 20, 1),
    Sketcher.Constraint("Coincident", 20, 2, 21, 1),
    Sketcher.Constraint("Coincident", 21, 2, 22, 1),
    Sketcher.Constraint("Coincident", 22, 2, 23, 1),
    Sketcher.Constraint("Coincident", 23, 2, 0, 1),
    Sketcher.Constraint("Vertical", 0),
    Sketcher.Constraint("Horizontal", 2),
    Sketcher.Constraint("Vertical", 4),
    Sketcher.Constraint("Horizontal", 5),
    Sketcher.Constraint("Vertical", 6),
    Sketcher.Constraint("Horizontal", 7),
    Sketcher.Constraint("Vertical", 8),
    Sketcher.Constraint("Horizontal", 9),
    Sketcher.Constraint("Vertical", 10),
    Sketcher.Constraint("Horizontal", 11),
    Sketcher.Constraint("Vertical", 12),
    Sketcher.Constraint("Horizontal", 14),
    Sketcher.Constraint("Vertical", 16),
    Sketcher.Constraint("Horizontal", 17),
    Sketcher.Constraint("Vertical", 18),
    Sketcher.Constraint("Horizontal", 19),
    Sketcher.Constraint("Vertical", 20),
    Sketcher.Constraint("Horizontal", 21),
    Sketcher.Constraint("Vertical", 22),
    Sketcher.Constraint("Horizontal", 23),
    Sketcher.Constraint("Equal", 1, 3),
    Sketcher.Constraint("Equal", 3, 13),
    Sketcher.Constraint("Equal", 13, 15),
    Sketcher.Constraint("Symmetric", 5, 2, 22, 2, -1, 1),
    Sketcher.Constraint("Symmetric", 11, 2, 16, 2, -2),
    Sketcher.Constraint("Symmetric", 9, 2, 18, 2, -2),
    Sketcher.Constraint("Symmetric", 7, 2, 20, 2, -2),
    Sketcher.Constraint("Symmetric", 4, 2, 23, 2, -2),
    Sketcher.Constraint("Vertical", 3, 3, 13, 3),
    Sketcher.Constraint("Vertical", 4, 2, 7, 2),
    Sketcher.Constraint("Vertical", 6, 2, 9, 2),
    Sketcher.Constraint("Equal", 6, 10),
    Sketcher.Constraint("Equal", 4, 12),
    Sketcher.Constraint("DistanceY", 8, 1, 8, 2, Q("10 mm")),
    Sketcher.Constraint("Radius", 1, Q("2.54 mm")),
    Sketcher.Constraint("DistanceX", 0, 2, -1, 1, Q("20 mm")),
    Sketcher.Constraint("DistanceY", 2, 2, 6, 2, Q("10 mm")),
    Sketcher.Constraint("DistanceY", 0, 2, 0, 1, Q("2.21 mm")),
    Sketcher.Constraint("DistanceX", 5, 2, 5, 1, Q("8.573 mm")),
])
pad6 = body.newObject("PartDesign::Pad", "Pad005")
pad6.Profile = sketch12
pad6.Length = 0.508

doc.recompute()
